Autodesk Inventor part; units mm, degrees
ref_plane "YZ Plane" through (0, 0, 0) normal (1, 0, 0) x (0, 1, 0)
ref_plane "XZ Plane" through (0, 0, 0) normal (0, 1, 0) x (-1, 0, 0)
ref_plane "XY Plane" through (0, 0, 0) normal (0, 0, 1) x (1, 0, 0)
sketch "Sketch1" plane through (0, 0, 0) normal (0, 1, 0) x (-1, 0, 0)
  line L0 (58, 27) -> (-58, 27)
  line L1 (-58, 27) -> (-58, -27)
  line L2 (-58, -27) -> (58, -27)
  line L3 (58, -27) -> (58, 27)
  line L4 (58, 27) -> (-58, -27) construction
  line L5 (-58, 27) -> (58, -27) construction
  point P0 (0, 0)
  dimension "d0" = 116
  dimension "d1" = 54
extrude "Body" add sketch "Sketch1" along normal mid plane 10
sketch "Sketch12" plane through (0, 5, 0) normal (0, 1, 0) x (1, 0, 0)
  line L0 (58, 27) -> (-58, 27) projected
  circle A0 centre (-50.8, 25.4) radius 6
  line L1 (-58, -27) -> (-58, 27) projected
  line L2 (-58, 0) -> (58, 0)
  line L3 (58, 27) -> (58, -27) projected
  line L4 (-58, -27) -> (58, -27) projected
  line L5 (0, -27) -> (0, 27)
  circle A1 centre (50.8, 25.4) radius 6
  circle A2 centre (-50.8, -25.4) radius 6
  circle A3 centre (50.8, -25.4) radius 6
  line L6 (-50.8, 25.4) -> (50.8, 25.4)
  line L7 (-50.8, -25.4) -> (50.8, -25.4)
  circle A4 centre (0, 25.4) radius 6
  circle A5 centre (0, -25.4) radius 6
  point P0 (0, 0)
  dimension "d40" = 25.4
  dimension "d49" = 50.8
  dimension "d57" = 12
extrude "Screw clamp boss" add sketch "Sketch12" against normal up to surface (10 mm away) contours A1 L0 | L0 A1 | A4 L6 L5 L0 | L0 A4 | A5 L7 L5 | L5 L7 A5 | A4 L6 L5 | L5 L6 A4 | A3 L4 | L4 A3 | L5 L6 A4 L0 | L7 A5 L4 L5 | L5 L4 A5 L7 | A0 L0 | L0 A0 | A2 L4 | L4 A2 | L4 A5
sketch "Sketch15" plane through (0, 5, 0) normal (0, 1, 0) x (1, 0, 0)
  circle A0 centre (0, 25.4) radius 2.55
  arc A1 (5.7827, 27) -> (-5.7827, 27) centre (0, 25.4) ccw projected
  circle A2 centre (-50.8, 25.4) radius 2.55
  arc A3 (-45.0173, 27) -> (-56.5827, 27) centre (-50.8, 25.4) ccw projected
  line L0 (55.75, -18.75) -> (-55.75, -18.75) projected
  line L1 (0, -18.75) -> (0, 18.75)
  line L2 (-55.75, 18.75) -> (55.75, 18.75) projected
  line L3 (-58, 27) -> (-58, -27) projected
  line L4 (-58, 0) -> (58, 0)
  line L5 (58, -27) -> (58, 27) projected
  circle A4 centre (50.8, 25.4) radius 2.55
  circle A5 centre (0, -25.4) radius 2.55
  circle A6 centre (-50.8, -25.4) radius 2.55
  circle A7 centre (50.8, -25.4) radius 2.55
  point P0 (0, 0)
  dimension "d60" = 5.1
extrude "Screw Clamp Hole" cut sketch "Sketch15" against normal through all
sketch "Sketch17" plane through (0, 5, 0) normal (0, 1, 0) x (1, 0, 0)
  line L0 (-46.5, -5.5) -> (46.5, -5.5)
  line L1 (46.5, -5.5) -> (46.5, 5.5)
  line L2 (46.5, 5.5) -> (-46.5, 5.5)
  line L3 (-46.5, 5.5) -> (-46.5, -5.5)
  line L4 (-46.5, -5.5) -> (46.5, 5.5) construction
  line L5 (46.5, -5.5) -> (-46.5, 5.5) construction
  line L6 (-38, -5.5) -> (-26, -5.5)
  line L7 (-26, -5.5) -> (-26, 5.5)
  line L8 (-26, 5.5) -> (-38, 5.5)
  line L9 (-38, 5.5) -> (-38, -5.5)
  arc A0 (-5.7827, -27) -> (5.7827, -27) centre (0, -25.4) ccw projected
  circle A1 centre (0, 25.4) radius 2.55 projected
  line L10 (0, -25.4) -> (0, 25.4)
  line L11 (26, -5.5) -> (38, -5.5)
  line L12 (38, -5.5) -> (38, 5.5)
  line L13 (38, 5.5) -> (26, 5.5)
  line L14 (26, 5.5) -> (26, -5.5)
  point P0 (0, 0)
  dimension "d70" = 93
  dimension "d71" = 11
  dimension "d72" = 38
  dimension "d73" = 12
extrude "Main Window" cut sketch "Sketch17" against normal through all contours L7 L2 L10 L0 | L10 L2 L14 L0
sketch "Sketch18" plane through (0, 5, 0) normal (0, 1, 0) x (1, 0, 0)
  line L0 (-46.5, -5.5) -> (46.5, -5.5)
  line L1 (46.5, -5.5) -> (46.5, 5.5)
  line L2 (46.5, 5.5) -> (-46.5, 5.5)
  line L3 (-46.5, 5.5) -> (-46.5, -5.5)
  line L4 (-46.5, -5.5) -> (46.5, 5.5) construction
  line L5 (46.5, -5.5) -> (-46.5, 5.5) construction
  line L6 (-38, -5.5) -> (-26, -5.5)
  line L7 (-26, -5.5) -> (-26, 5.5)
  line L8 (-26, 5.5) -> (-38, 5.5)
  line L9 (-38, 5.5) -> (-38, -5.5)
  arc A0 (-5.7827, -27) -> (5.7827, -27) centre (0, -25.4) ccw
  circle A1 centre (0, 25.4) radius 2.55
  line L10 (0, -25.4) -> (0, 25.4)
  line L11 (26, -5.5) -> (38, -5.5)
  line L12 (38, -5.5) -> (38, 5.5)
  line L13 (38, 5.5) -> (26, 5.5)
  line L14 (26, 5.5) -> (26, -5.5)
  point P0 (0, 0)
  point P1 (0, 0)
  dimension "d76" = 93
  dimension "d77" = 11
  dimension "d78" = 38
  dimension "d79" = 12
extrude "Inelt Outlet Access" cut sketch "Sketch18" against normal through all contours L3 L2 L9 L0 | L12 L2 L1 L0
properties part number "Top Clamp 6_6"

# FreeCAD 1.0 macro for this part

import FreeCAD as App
import Part
import Sketcher
Q = App.Units.Quantity


def add_polygon(sketch, points):
    """Adds a closed chain of lines whose ends are joined by coincident constraints."""
    first, n = sketch.GeometryCount, len(points)
    for a, b in zip(points, points[1:] + points[:1]):
        sketch.addGeometry(Part.LineSegment(App.Vector(*a, 0), App.Vector(*b, 0)), False)
    for i in range(n):
        sketch.addConstraint(Sketcher.Constraint("Coincident", first + i, 2, first + (i + 1) % n, 1))

doc = App.newDocument("Part")
body = doc.addObject("PartDesign::Body", "Body")

# Sketch on XZ plane
sketch1 = body.newObject("Sketcher::SketchObject", "Sketch")
sketch1.AttachmentSupport = (doc.getObject("XZ_Plane"), [""])
sketch1.MapMode = "FlatFace"
add_polygon(sketch1, [(-58, -27), (-58, 27), (58, 27), (58, -27)])  # lines 0-3
sketch1.addConstraint([
    Sketcher.Constraint("Vertical", 0),
    Sketcher.Constraint("Horizontal", 1),
    Sketcher.Constraint("Vertical", 2),
    Sketcher.Constraint("Horizontal", 3),
    Sketcher.Constraint("Symmetric", 0, 2, 2, 2, -1, 1),
    Sketcher.Constraint("DistanceX", 1, 1, 1, 2, Q("116 mm")),
    Sketcher.Constraint("DistanceY", 0, 1, 0, 2, Q("54 mm")),
])
pad1 = body.newObject("PartDesign::Pad", "Pad")
pad1.Profile = sketch1
pad1.Length = 10
pad1.Midplane = True

# Sketch on XZ plane
sketch2 = body.newObject("Sketcher::SketchObject", "Sketch001")
sketch2.AttachmentSupport = (doc.getObject("XZ_Plane"), [""])
sketch2.MapMode = "FlatFace"
sketch2.AttachmentOffset = App.Placement(App.Vector(0, 0, -5), App.Rotation())
sketch2.addGeometry([
    Part.Circle(App.Vector(50.8, -25.4, 0), App.Vector(0, 0, 1), 6),  # 0
    Part.Circle(App.Vector(0, -25.4, 0), App.Vector(0, 0, 1), 6),  # 1
    Part.Circle(App.Vector(0, 25.4, 0), App.Vector(0, 0, 1), 6),  # 2
    Part.Circle(App.Vector(50.8, 25.4, 0), App.Vector(0, 0, 1), 6),  # 3
    Part.Circle(App.Vector(-50.8, -25.4, 0), App.Vector(0, 0, 1), 6),  # 4
    Part.Circle(App.Vector(-50.8, 25.4, 0), App.Vector(0, 0, 1), 6),  # 5
], False)
sketch2.addConstraint([
    Sketcher.Constraint("Equal", 0, 1),
    Sketcher.Constraint("Equal", 1, 2),
    Sketcher.Constraint("Equal", 2, 3),
    Sketcher.Constraint("Equal", 3, 4),
    Sketcher.Constraint("Equal", 4, 5),
    Sketcher.Constraint("Symmetric", 1, 3, 2, 3, -1, 1),
    Sketcher.Constraint("Symmetric", 3, 3, 4, 3, -1, 1),
    Sketcher.Constraint("Symmetric", 0, 3, 5, 3, -1, 1),
    Sketcher.Constraint("Symmetric", 0, 3, 4, 3, -2),
    Sketcher.Constraint("PointOnObject", 1, 3, -2),
    Sketcher.Constraint("Horizontal", 0, 3, 1, 3),
    Sketcher.Constraint("Diameter", 0, Q("12 mm")),
    Sketcher.Constraint("DistanceX", -1, 1, 0, 3, Q("50.8 mm")),
    Sketcher.Constraint("DistanceY", 0, 3, -1, 1, Q("25.4 mm")),
])
pad2 = body.newObject("PartDesign::Pad", "Pad001")
pad2.Profile = sketch2
pad2.Length = 10

# Sketch on XZ plane
sketch3 = body.newObject("Sketcher::SketchObject", "Sketch002")
sketch3.AttachmentSupport = (doc.getObject("XZ_Plane"), [""])
sketch3.MapMode = "FlatFace"
sketch3.AttachmentOffset = App.Placement(App.Vector(0, 0, -5), App.Rotation())
sketch3.addGeometry([
    Part.Circle(App.Vector(0, -25.4, 0), App.Vector(0, 0, 1), 2.55),  # 0
    Part.Circle(App.Vector(-50.8, -25.4, 0), App.Vector(0, 0, 1), 2.55),  # 1
    Part.Circle(App.Vector(50.8, -25.4, 0), App.Vector(0, 0, 1), 2.55),  # 2
    Part.Circle(App.Vector(0, 25.4, 0), App.Vector(0, 0, 1), 2.55),  # 3
    Part.Circle(App.Vector(-50.8, 25.4, 0), App.Vector(0, 0, 1), 2.55),  # 4
    Part.Circle(App.Vector(50.8, 25.4, 0), App.Vector(0, 0, 1), 2.55),  # 5
], False)
sketch3.addConstraint([
    Sketcher.Constraint("Equal", 0, 1),
    Sketcher.Constraint("Equal", 1, 2),
    Sketcher.Constraint("Equal", 2, 3),
    Sketcher.Constraint("Equal", 3, 4),
    Sketcher.Constraint("Equal", 4, 5),
    Sketcher.Constraint("Symmetric", 0, 3, 3, 3, -1, 1),
    Sketcher.Constraint("Symmetric", 2, 3, 4, 3, -1, 1),
    Sketcher.Constraint("Symmetric", 1, 3, 5, 3, -1, 1),
    Sketcher.Constraint("Symmetric", 1, 3, 2, 3, -2),
    Sketcher.Constraint("PointOnObject", 0, 3, -2),
    Sketcher.Constraint("Horizontal", 0, 3, 1, 3),
    Sketcher.Constraint("Diameter", 0, Q("5.1 mm")),
    Sketcher.Constraint("DistanceY", 0, 3, -1, 1, Q("25.4 mm")),
    Sketcher.Constraint("DistanceX", 1, 3, -1, 1, Q("50.8 mm")),
])
pocket1 = body.newObject("PartDesign::Pocket", "Pocket")
pocket1.Profile = sketch3
pocket1.Type = "ThroughAll"
pocket1.Reversed = True

# Sketch on XZ plane
sketch4 = body.newObject("Sketcher::SketchObject", "Sketch003")
sketch4.AttachmentSupport = (doc.getObject("XZ_Plane"), [""])
sketch4.MapMode = "FlatFace"
sketch4.AttachmentOffset = App.Placement(App.Vector(0, 0, -5), App.Rotation())
add_polygon(sketch4, [(-26, -5.5), (-26, 5.5), (26, 5.5), (26, -5.5)])  # lines 0-3
sketch4.addConstraint([
    Sketcher.Constraint("Vertical", 0),
    Sketcher.Constraint("Horizontal", 1),
    Sketcher.Constraint("Vertical", 2),
    Sketcher.Constraint("Horizontal", 3),
    Sketcher.Constraint("Symmetric", 0, 2, 2, 2, -1, 1),
    Sketcher.Constraint("DistanceY", 0, 1, 0, 2, Q("11 mm")),
    Sketcher.Constraint("DistanceX", 1, 1, 1, 2, Q("52 mm")),
])
pocket2 = body.newObject("PartDesign::Pocket", "Pocket001")
pocket2.Profile = sketch4
pocket2.Type = "ThroughAll"
pocket2.Reversed = True

# Sketch on XZ plane
sketch5 = body.newObject("Sketcher::SketchObject", "Sketch004")
sketch5.AttachmentSupport = (doc.getObject("XZ_Plane"), [""])
sketch5.MapMode = "FlatFace"
sketch5.AttachmentOffset = App.Placement(App.Vector(0, 0, -5), App.Rotation())
add_polygon(sketch5, [(-46.5, -5.5), (-46.5, 5.5), (-38, 5.5), (-38, -5.5)])  # lines 0-3
add_polygon(sketch5, [(38, -5.5), (38, 5.5), (46.5, 5.5), (46.5, -5.5)])  # lines 4-7
sketch5.addConstraint([
    Sketcher.Constraint("Vertical", 0),
    Sketcher.Constraint("Horizontal", 1),
    Sketcher.Constraint("Vertical", 2),
    Sketcher.Constraint("Horizontal", 3),
    Sketcher.Constraint("Vertical", 4),
    Sketcher.Constraint("Horizontal", 5),
    Sketcher.Constraint("Vertical", 6),
    Sketcher.Constraint("Horizontal", 7),
    Sketcher.Constraint("Symmetric", 2, 2, 4, 2, -1, 1),
    Sketcher.Constraint("Symmetric", 0, 2, 6, 2, -1, 1),
    Sketcher.Constraint("Horizontal", 1, 2, 4, 2),
    Sketcher.Constraint("DistanceY", 0, 1, 0, 2, Q("11 mm")),
    Sketcher.Constraint("DistanceX", 1, 2, -1, 1, Q("38 mm")),
    Sketcher.Constraint("DistanceX", 0, 2, 5, 2, Q("93 mm")),
])
pocket3 = body.newObject("PartDesign::Pocket", "Pocket002")
pocket3.Profile = sketch5
pocket3.Type = "ThroughAll"
pocket3.Reversed = True

doc.recompute()
